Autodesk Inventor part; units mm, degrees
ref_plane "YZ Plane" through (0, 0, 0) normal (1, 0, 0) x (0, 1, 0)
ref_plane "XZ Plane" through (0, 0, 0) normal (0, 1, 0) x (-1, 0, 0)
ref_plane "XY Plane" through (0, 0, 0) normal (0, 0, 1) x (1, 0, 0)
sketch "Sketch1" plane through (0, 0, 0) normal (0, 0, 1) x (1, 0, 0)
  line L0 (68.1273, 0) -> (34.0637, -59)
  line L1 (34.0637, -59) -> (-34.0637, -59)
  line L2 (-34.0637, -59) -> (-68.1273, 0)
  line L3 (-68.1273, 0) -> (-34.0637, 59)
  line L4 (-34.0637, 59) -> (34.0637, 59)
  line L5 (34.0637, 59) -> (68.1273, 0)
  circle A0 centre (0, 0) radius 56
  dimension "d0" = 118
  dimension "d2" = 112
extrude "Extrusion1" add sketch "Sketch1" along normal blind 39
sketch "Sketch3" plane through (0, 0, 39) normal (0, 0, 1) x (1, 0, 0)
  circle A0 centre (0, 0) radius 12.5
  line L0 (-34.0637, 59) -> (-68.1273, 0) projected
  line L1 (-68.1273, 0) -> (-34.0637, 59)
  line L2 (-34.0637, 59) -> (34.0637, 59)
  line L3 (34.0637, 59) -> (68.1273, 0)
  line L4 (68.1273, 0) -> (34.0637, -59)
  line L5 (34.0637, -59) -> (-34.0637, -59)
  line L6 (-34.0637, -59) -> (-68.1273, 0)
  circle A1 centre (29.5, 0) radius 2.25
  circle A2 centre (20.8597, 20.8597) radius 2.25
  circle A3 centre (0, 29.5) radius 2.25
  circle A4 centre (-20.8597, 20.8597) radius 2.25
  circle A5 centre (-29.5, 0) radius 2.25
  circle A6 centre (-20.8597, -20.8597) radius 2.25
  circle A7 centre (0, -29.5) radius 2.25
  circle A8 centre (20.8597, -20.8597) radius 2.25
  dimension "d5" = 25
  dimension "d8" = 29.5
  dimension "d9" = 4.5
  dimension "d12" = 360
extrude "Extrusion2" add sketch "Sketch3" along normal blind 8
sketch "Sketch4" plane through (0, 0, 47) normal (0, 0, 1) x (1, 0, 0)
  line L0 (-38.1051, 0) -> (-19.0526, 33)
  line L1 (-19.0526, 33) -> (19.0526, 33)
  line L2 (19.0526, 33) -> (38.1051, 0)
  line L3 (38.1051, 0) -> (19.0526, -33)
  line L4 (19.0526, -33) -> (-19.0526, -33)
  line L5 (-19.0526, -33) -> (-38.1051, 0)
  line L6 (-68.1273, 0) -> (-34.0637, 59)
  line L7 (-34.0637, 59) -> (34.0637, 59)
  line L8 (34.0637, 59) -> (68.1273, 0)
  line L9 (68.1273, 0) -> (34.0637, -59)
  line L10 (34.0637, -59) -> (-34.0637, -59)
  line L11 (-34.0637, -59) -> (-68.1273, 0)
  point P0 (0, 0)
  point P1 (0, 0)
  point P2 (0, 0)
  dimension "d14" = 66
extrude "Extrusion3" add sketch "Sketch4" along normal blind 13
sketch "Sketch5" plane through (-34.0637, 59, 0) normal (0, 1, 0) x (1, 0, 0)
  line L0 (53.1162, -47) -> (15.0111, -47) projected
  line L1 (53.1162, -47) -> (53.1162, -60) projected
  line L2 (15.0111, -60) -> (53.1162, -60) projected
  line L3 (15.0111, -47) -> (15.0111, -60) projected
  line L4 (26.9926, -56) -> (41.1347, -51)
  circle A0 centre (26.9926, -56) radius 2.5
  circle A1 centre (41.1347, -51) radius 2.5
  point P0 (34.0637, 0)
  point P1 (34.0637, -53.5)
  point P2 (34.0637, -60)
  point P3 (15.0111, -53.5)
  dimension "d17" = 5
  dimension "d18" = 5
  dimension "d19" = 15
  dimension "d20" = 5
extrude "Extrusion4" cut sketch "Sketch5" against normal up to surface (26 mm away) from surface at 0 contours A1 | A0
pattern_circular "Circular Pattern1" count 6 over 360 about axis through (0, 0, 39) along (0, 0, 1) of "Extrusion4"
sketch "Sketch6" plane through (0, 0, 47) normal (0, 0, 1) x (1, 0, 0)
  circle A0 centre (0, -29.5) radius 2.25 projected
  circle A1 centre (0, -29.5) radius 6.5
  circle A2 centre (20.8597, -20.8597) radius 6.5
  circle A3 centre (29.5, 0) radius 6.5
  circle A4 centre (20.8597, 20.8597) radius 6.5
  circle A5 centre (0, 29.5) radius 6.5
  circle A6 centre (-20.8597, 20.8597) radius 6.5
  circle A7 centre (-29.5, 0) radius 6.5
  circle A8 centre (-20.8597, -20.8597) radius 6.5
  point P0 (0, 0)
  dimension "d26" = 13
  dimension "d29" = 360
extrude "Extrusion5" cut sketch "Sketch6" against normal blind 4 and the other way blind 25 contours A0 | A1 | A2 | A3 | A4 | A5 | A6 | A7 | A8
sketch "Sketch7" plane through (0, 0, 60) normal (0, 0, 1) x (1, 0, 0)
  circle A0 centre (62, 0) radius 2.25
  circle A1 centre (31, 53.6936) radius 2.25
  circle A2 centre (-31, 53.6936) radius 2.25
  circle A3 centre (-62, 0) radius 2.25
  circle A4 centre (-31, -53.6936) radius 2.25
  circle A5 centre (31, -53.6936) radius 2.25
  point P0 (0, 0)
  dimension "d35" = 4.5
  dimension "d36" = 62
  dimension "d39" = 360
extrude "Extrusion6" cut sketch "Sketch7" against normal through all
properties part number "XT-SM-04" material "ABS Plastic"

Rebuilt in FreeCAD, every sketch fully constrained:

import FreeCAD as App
import Part
import Sketcher

V = App.Vector
Q = App.Units.Quantity

doc = App.newDocument("Part")
body = doc.addObject("PartDesign::Body", "Body")

# Sketch on XY plane
sketch1 = body.newObject("Sketcher::SketchObject", "Sketch")
sketch1.AttachmentSupport = (doc.getObject("XY_Plane"), [""])
sketch1.MapMode = "FlatFace"
sketch1.addGeometry([
    Part.LineSegment(V(34, -59, 0), V(68, 0, 0)),  # 0
    Part.LineSegment(V(68, 0, 0), V(34, 59, 0)),  # 1
    Part.LineSegment(V(34, 59, 0), V(-34, 59, 0)),  # 2
    Part.LineSegment(V(-34, 59, 0), V(-68, 0, 0)),  # 3
    Part.LineSegment(V(-68, 0, 0), V(-34, -59, 0)),  # 4
    Part.LineSegment(V(-34, -59, 0), V(34, -59, 0)),  # 5
    Part.Circle(V(0, 0, 0), V(0, 0, 1), 56),  # 6
], False)
sketch1.addConstraint([
    Sketcher.Constraint("Coincident", 0, 2, 1, 1),
    Sketcher.Constraint("Coincident", 1, 2, 2, 1),
    Sketcher.Constraint("Coincident", 2, 2, 3, 1),
    Sketcher.Constraint("Coincident", 3, 2, 4, 1),
    Sketcher.Constraint("Coincident", 4, 2, 5, 1),
    Sketcher.Constraint("Coincident", 5, 2, 0, 1),
    Sketcher.Constraint("Horizontal", 2),
    Sketcher.Constraint("Horizontal", 5),
    Sketcher.Constraint("Coincident", 6, 3, -1, 1),
    Sketcher.Constraint("Symmetric", 0, 2, 3, 2, -1, 1),
    Sketcher.Constraint("Symmetric", 1, 2, 4, 2, -1, 1),
    Sketcher.Constraint("PointOnObject", 0, 2, -1),
    Sketcher.Constraint("Parallel", 0, 3),
    Sketcher.Constraint("Vertical", 2, 2, 4, 2),
    Sketcher.Constraint("Diameter", 6, 112.0),
    Sketcher.Constraint("DistanceY", 4, 2, 2, 2, 118.0),
    Sketcher.Constraint("Angle", 0, Q("60 deg")),
    Sketcher.Constraint("DistanceX", 2, 2, 2, 1, 68.1274),
])
pad1 = body.newObject("PartDesign::Pad", "Pad")
pad1.Profile = sketch1
pad1.Length = 39

# Sketch on XY plane
sketch2 = body.newObject("Sketcher::SketchObject", "Sketch001")
sketch2.AttachmentSupport = (doc.getObject("XY_Plane"), [""])
sketch2.MapMode = "FlatFace"
sketch2.AttachmentOffset = App.Placement(V(0, 0, 39), App.Rotation())
sketch2.addGeometry([
    Part.LineSegment(V(34.1, 59, 0), V(-34.1, 59, 0)),  # 0
    Part.LineSegment(V(-34.1, 59, 0), V(-68.1, 0, 0)),  # 1
    Part.LineSegment(V(-68.1, 0, 0), V(-34.1, -59, 0)),  # 2
    Part.LineSegment(V(-34.1, -59, 0), V(34.1, -59, 0)),  # 3
    Part.LineSegment(V(34.1, -59, 0), V(68.1, 0, 0)),  # 4
    Part.LineSegment(V(68.1, 0, 0), V(34.1, 59, 0)),  # 5
    Part.Circle(V(-20.9, -20.9, 0), V(0, 0, 1), 2.2),  # 6
    Part.Circle(V(0, -29.5, 0), V(0, 0, 1), 2.2),  # 7
    Part.Circle(V(20.9, -20.9, 0), V(0, 0, 1), 2.2),  # 8
    Part.Circle(V(-29.5, 0, 0), V(0, 0, 1), 2.2),  # 9
    Part.Circle(V(-20.9, 20.9, 0), V(0, 0, 1), 2.2),  # 10
    Part.Circle(V(0, 0, 0), V(0, 0, 1), 12.5),  # 11
    Part.Circle(V(29.5, 0, 0), V(0, 0, 1), 2.2),  # 12
    Part.Circle(V(20.9, 20.9, 0), V(0, 0, 1), 2.2),  # 13
    Part.Circle(V(0, 29.5, 0), V(0, 0, 1), 2.2),  # 14
], False)
sketch2.addConstraint([
    Sketcher.Constraint("Coincident", 0, 2, 1, 1),
    Sketcher.Constraint("Coincident", 1, 2, 2, 1),
    Sketcher.Constraint("Coincident", 2, 2, 3, 1),
    Sketcher.Constraint("Coincident", 3, 2, 4, 1),
    Sketcher.Constraint("Coincident", 4, 2, 5, 1),
    Sketcher.Constraint("Coincident", 5, 2, 0, 1),
    Sketcher.Constraint("Horizontal", 0),
    Sketcher.Constraint("Horizontal", 3),
    Sketcher.Constraint("Coincident", 11, 3, -1, 1),
    Sketcher.Constraint("Equal", 6, 7),
    Sketcher.Constraint("Equal", 7, 8),
    Sketcher.Constraint("Equal", 8, 9),
    Sketcher.Constraint("Equal", 9, 10),
    Sketcher.Constraint("Equal", 10, 12),
    Sketcher.Constraint("Equal", 12, 13),
    Sketcher.Constraint("Equal", 13, 14),
    Sketcher.Constraint("Symmetric", 8, 3, 10, 3, -1, 1),
    Sketcher.Constraint("Symmetric", 9, 3, 12, 3, -1, 1),
    Sketcher.Constraint("Symmetric", 6, 3, 13, 3, -1, 1),
    Sketcher.Constraint("Symmetric", 7, 3, 14, 3, -1, 1),
    Sketcher.Constraint("Symmetric", 0, 2, 3, 2, -1, 1),
    Sketcher.Constraint("Symmetric", 1, 2, 4, 2, -1, 1),
    Sketcher.Constraint("Symmetric", 6, 3, 8, 3, -2),
    Sketcher.Constraint("PointOnObject", 7, 3, -2),
    Sketcher.Constraint("PointOnObject", 9, 3, -1),
    Sketcher.Constraint("PointOnObject", 1, 2, -1),
    Sketcher.Constraint("Parallel", 2, 5),
    Sketcher.Constraint("Vertical", 0, 2, 2, 2),
    Sketcher.Constraint("Diameter", 11, 25.0),
    Sketcher.Constraint("Diameter", 6, 4.5),
    Sketcher.Constraint("DistanceY", 7, 3, -1, 1, 29.5),
    Sketcher.Constraint("DistanceX", 9, 3, -1, 1, 29.5),
    Sketcher.Constraint("DistanceY", 14, 3, 0, 2, 29.5),
    Sketcher.Constraint("Angle", 1, Q("-120 deg")),
    Sketcher.Constraint("DistanceX", 0, 2, 0, 1, 68.1274),
    Sketcher.Constraint("DistanceX", 0, 2, 10, 3, 13.204),
    Sketcher.Constraint("DistanceY", 6, 3, -1, 1, 20.8597),
])
pad2 = body.newObject("PartDesign::Pad", "Pad001")
pad2.Profile = sketch2
pad2.Length = 8

# Sketch on XY plane
sketch3 = body.newObject("Sketcher::SketchObject", "Sketch002")
sketch3.AttachmentSupport = (doc.getObject("XY_Plane"), [""])
sketch3.MapMode = "FlatFace"
sketch3.AttachmentOffset = App.Placement(V(0, 0, 47), App.Rotation())
sketch3.addGeometry([
    Part.LineSegment(V(-34, 59, 0), V(-68, 0, 0)),  # 0
    Part.LineSegment(V(-68, 0, 0), V(-34, -59, 0)),  # 1
    Part.LineSegment(V(-34, -59, 0), V(34, -59, 0)),  # 2
    Part.LineSegment(V(34, -59, 0), V(68, 0, 0)),  # 3
    Part.LineSegment(V(68, 0, 0), V(34, 59, 0)),  # 4
    Part.LineSegment(V(34, 59, 0), V(-34, 59, 0)),  # 5
    Part.LineSegment(V(-19, -33, 0), V(-38, 0, 0)),  # 6
    Part.LineSegment(V(-38, 0, 0), V(-19, 33, 0)),  # 7
    Part.LineSegment(V(-19, 33, 0), V(19, 33, 0)),  # 8
    Part.LineSegment(V(19, 33, 0), V(38, 0, 0)),  # 9
    Part.LineSegment(V(38, 0, 0), V(19, -33, 0)),  # 10
    Part.LineSegment(V(19, -33, 0), V(-19, -33, 0)),  # 11
], False)
sketch3.addConstraint([
    Sketcher.Constraint("Coincident", 0, 2, 1, 1),
    Sketcher.Constraint("Coincident", 1, 2, 2, 1),
    Sketcher.Constraint("Coincident", 2, 2, 3, 1),
    Sketcher.Constraint("Coincident", 3, 2, 4, 1),
    Sketcher.Constraint("Coincident", 4, 2, 5, 1),
    Sketcher.Constraint("Coincident", 5, 2, 0, 1),
    Sketcher.Constraint("Coincident", 6, 2, 7, 1),
    Sketcher.Constraint("Coincident", 7, 2, 8, 1),
    Sketcher.Constraint("Coincident", 8, 2, 9, 1),
    Sketcher.Constraint("Coincident", 9, 2, 10, 1),
    Sketcher.Constraint("Coincident", 10, 2, 11, 1),
    Sketcher.Constraint("Coincident", 11, 2, 6, 1),
    Sketcher.Constraint("Horizontal", 2),
    Sketcher.Constraint("Horizontal", 5),
    Sketcher.Constraint("Horizontal", 8),
    Sketcher.Constraint("Horizontal", 11),
    Sketcher.Constraint("Symmetric", 0, 2, 3, 2, -1, 1),
    Sketcher.Constraint("Symmetric", 1, 2, 4, 2, -1, 1),
    Sketcher.Constraint("Symmetric", 6, 2, 9, 2, -1, 1),
    Sketcher.Constraint("Symmetric", 7, 2, 10, 2, -1, 1),
    Sketcher.Constraint("PointOnObject", 0, 2, -1),
    Sketcher.Constraint("PointOnObject", 6, 2, -1),
    Sketcher.Constraint("Parallel", 0, 3),
    Sketcher.Constraint("Parallel", 4, 6),
    Sketcher.Constraint("Parallel", 3, 7),
    Sketcher.Constraint("Parallel", 6, 9),
    Sketcher.Constraint("Vertical", 2, 2, 4, 2),
    Sketcher.Constraint("DistanceY", 10, 2, 8, 2, 66.0),
    Sketcher.Constraint("Angle", 0, Q("-120 deg")),
    Sketcher.Constraint("DistanceY", 1, 2, -1, 1, 59.0),
    Sketcher.Constraint("DistanceX", 2, 1, 2, 2, 68.1274),
    Sketcher.Constraint("DistanceX", 8, 1, 8, 2, 38.1052),
])
pad3 = body.newObject("PartDesign::Pad", "Pad002")
pad3.Profile = sketch3
pad3.Length = 13

# Sketch on XZ plane
sketch4 = body.newObject("Sketcher::SketchObject", "Sketch003")
sketch4.AttachmentSupport = (doc.getObject("XZ_Plane"), [""])
sketch4.MapMode = "FlatFace"
sketch4.AttachmentOffset = App.Placement(V(0, 0, -59), App.Rotation())
sketch4.addGeometry([
    Part.Circle(V(7.1, 51, 0), V(0, 0, 1), 2.5),
    Part.Circle(V(-7.1, 56, 0), V(0, 0, 1), 2.5),
], False)
sketch4.addConstraint([
    Sketcher.Constraint("Equal", 0, 1),
    Sketcher.Constraint("Diameter", 0, 5.0),
    Sketcher.Constraint("DistanceY", 0, 3, 1, 3, 5.0),
    Sketcher.Constraint("DistanceY", -1, 1, 0, 3, 51.0),
    Sketcher.Constraint("DistanceX", -1, 1, 0, 3, 7.071),
    Sketcher.Constraint("DistanceX", 1, 3, -1, 1, 7.071),
])
pocket1 = body.newObject("PartDesign::Pocket", "Pocket")
pocket1.Profile = sketch4
pocket1.Length = 26
pocket1.Reversed = True
doc.recompute()

polarpattern = body.newObject("PartDesign::PolarPattern", "PolarPattern")
polarpattern.Originals = [pocket1]
polarpattern.Axis = (doc.getObject("Z_Axis"), [""])
polarpattern.Angle = 360
polarpattern.Occurrences = 6
body.Tip = polarpattern

# Sketch on XY plane
sketch5 = body.newObject("Sketcher::SketchObject", "Sketch004")
sketch5.AttachmentSupport = (doc.getObject("XY_Plane"), [""])
sketch5.MapMode = "FlatFace"
sketch5.AttachmentOffset = App.Placement(V(0, 0, 47), App.Rotation())
sketch5.addGeometry([
    Part.Circle(V(0, -30, 0), V(0, 0, 1), 6),  # 0
    Part.Circle(V(21, -21, 0), V(0, 0, 1), 6),  # 1
    Part.Circle(V(30, 0, 0), V(0, 0, 1), 6),  # 2
    Part.Circle(V(21, 21, 0), V(0, 0, 1), 6),  # 3
    Part.Circle(V(0, 30, 0), V(0, 0, 1), 6),  # 4
    Part.Circle(V(-21, 21, 0), V(0, 0, 1), 6),  # 5
    Part.Circle(V(-30, 0, 0), V(0, 0, 1), 6),  # 6
    Part.Circle(V(-21, -21, 0), V(0, 0, 1), 6),  # 7
], False)
sketch5.addConstraint([
    Sketcher.Constraint("Equal", 0, 1),
    Sketcher.Constraint("Equal", 1, 2),
    Sketcher.Constraint("Equal", 2, 3),
    Sketcher.Constraint("Equal", 3, 4),
    Sketcher.Constraint("Equal", 4, 5),
    Sketcher.Constraint("Equal", 5, 6),
    Sketcher.Constraint("Equal", 6, 7),
    Sketcher.Constraint("Symmetric", 0, 3, 4, 3, -1, 1),
    Sketcher.Constraint("Symmetric", 1, 3, 5, 3, -1, 1),
    Sketcher.Constraint("Symmetric", 2, 3, 6, 3, -1, 1),
    Sketcher.Constraint("Symmetric", 3, 3, 7, 3, -1, 1),
    Sketcher.Constraint("Symmetric", 3, 3, 5, 3, -2),
    Sketcher.Constraint("PointOnObject", 0, 3, -2),
    Sketcher.Constraint("PointOnObject", 2, 3, -1),
    Sketcher.Constraint("Diameter", 0, 13.0),
    Sketcher.Constraint("DistanceY", 0, 3, 4, 3, 59.0),
    Sketcher.Constraint("DistanceX", -1, 1, 2, 3, 29.5),
    Sketcher.Constraint("DistanceX", -1, 1, 1, 3, 20.8597),
    Sketcher.Constraint("DistanceY", 1, 3, -1, 1, 20.8597),
])
pocket2 = body.newObject("PartDesign::Pocket", "Pocket001")
pocket2.Profile = sketch5
pocket2.Type = "TwoLengths"
pocket2.Length = 4
pocket2.Length2 = 25

# Sketch on XY plane
sketch6 = body.newObject("Sketcher::SketchObject", "Sketch005")
sketch6.AttachmentSupport = (doc.getObject("XY_Plane"), [""])
sketch6.MapMode = "FlatFace"
sketch6.AttachmentOffset = App.Placement(V(0, 0, 60), App.Rotation())
sketch6.addGeometry([
    Part.Circle(V(62, 0, 0), V(0, 0, 1), 2.2),  # 0
    Part.Circle(V(31, 53.7, 0), V(0, 0, 1), 2.2),  # 1
    Part.Circle(V(-31, 53.7, 0), V(0, 0, 1), 2.2),  # 2
    Part.Circle(V(-62, 0, 0), V(0, 0, 1), 2.2),  # 3
    Part.Circle(V(-31, -53.7, 0), V(0, 0, 1), 2.2),  # 4
    Part.Circle(V(31, -53.7, 0), V(0, 0, 1), 2.2),  # 5
], False)
sketch6.addConstraint([
    Sketcher.Constraint("Equal", 0, 1),
    Sketcher.Constraint("Equal", 1, 2),
    Sketcher.Constraint("Equal", 2, 3),
    Sketcher.Constraint("Equal", 3, 4),
    Sketcher.Constraint("Equal", 4, 5),
    Sketcher.Constraint("Symmetric", 0, 3, 3, 3, -1, 1),
    Sketcher.Constraint("Symmetric", 1, 3, 4, 3, -1, 1),
    Sketcher.Constraint("Symmetric", 2, 3, 5, 3, -1, 1),
    Sketcher.Constraint("Symmetric", 1, 3, 2, 3, -2),
    Sketcher.Constraint("PointOnObject", 0, 3, -1),
    Sketcher.Constraint("Diameter", 0, 4.5),
    Sketcher.Constraint("DistanceX", -1, 1, 0, 3, 62.0),
    Sketcher.Constraint("DistanceX", 2, 3, 1, 3, 62.0),
    Sketcher.Constraint("DistanceY", -1, 1, 1, 3, 53.6936),
])
pocket3 = body.newObject("PartDesign::Pocket", "Pocket002")
pocket3.Profile = sketch6
pocket3.Type = "ThroughAll"

doc.recompute()
